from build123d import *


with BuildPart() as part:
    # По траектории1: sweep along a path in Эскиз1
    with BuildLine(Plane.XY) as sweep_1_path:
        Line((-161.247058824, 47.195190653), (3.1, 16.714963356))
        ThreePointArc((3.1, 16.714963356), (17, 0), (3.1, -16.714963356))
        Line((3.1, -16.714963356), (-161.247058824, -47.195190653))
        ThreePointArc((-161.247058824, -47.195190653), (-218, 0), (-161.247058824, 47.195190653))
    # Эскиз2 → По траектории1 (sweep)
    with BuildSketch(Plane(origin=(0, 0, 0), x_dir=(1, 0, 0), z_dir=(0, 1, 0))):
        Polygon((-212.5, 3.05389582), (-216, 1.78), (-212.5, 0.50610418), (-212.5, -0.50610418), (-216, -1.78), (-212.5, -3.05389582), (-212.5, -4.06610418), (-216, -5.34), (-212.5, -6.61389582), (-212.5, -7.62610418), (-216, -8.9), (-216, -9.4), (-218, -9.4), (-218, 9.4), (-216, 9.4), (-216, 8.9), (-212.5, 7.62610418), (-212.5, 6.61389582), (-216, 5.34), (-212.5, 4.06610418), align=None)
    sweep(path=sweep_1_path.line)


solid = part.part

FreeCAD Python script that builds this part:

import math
import FreeCAD as App
import Part
import Sketcher
Q = App.Units.Quantity

doc = App.newDocument("Part")
body = doc.addObject("PartDesign::Body", "Body")

# Sketch on XZ plane
sketch1 = body.newObject("Sketcher::SketchObject", "Sketch")
sketch1.AttachmentSupport = (doc.getObject("XZ_Plane"), [""])
sketch1.MapMode = "FlatFace"
sketch1.addGeometry([
    Part.LineSegment(App.Vector(-216, -1.8, 0), App.Vector(-212.5, -3.1, 0)),  # 0
    Part.LineSegment(App.Vector(-212.5, -3.1, 0), App.Vector(-212.5, -4.1, 0)),  # 1
    Part.LineSegment(App.Vector(-212.5, -4.1, 0), App.Vector(-216, -5.3, 0)),  # 2
    Part.LineSegment(App.Vector(-216, -5.3, 0), App.Vector(-212.5, -6.6, 0)),  # 3
    Part.LineSegment(App.Vector(-212.5, -6.6, 0), App.Vector(-212.5, -7.6, 0)),  # 4
    Part.LineSegment(App.Vector(-212.5, -7.6, 0), App.Vector(-216, -8.9, 0)),  # 5
    Part.LineSegment(App.Vector(-216, -8.9, 0), App.Vector(-216, -9.4, 0)),  # 6
    Part.LineSegment(App.Vector(-216, -9.4, 0), App.Vector(-218, -9.4, 0)),  # 7
    Part.LineSegment(App.Vector(-218, -9.4, 0), App.Vector(-218, 9.4, 0)),  # 8
    Part.LineSegment(App.Vector(-218, 9.4, 0), App.Vector(-216, 9.4, 0)),  # 9
    Part.LineSegment(App.Vector(-216, 9.4, 0), App.Vector(-216, 8.9, 0)),  # 10
    Part.LineSegment(App.Vector(-216, 8.9, 0), App.Vector(-212.5, 7.6, 0)),  # 11
    Part.LineSegment(App.Vector(-212.5, 7.6, 0), App.Vector(-212.5, 6.6, 0)),  # 12
    Part.LineSegment(App.Vector(-212.5, 6.6, 0), App.Vector(-216, 5.3, 0)),  # 13
    Part.LineSegment(App.Vector(-216, 5.3, 0), App.Vector(-212.5, 4.1, 0)),  # 14
    Part.LineSegment(App.Vector(-212.5, 4.1, 0), App.Vector(-212.5, 3.1, 0)),  # 15
    Part.LineSegment(App.Vector(-212.5, 3.1, 0), App.Vector(-216, 1.8, 0)),  # 16
    Part.LineSegment(App.Vector(-216, 1.8, 0), App.Vector(-212.5, 0.5, 0)),  # 17
    Part.LineSegment(App.Vector(-212.5, 0.5, 0), App.Vector(-212.5, -0.5, 0)),  # 18
    Part.LineSegment(App.Vector(-212.5, -0.5, 0), App.Vector(-216, -1.8, 0)),  # 19
], False)
sketch1.addConstraint([
    Sketcher.Constraint("Coincident", 0, 2, 1, 1),
    Sketcher.Constraint("Coincident", 1, 2, 2, 1),
    Sketcher.Constraint("Coincident", 2, 2, 3, 1),
    Sketcher.Constraint("Coincident", 3, 2, 4, 1),
    Sketcher.Constraint("Coincident", 4, 2, 5, 1),
    Sketcher.Constraint("Coincident", 5, 2, 6, 1),
    Sketcher.Constraint("Coincident", 6, 2, 7, 1),
    Sketcher.Constraint("Coincident", 7, 2, 8, 1),
    Sketcher.Constraint("Coincident", 8, 2, 9, 1),
    Sketcher.Constraint("Coincident", 9, 2, 10, 1),
    Sketcher.Constraint("Coincident", 10, 2, 11, 1),
    Sketcher.Constraint("Coincident", 11, 2, 12, 1),
    Sketcher.Constraint("Coincident", 12, 2, 13, 1),
    Sketcher.Constraint("Coincident", 13, 2, 14, 1),
    Sketcher.Constraint("Coincident", 14, 2, 15, 1),
    Sketcher.Constraint("Coincident", 15, 2, 16, 1),
    Sketcher.Constraint("Coincident", 16, 2, 17, 1),
    Sketcher.Constraint("Coincident", 17, 2, 18, 1),
    Sketcher.Constraint("Coincident", 18, 2, 19, 1),
    Sketcher.Constraint("Coincident", 19, 2, 0, 1),
    Sketcher.Constraint("Vertical", 1),
    Sketcher.Constraint("Vertical", 4),
    Sketcher.Constraint("Vertical", 6),
    Sketcher.Constraint("Horizontal", 7),
    Sketcher.Constraint("Vertical", 8),
    Sketcher.Constraint("Horizontal", 9),
    Sketcher.Constraint("Vertical", 10),
    Sketcher.Constraint("Vertical", 12),
    Sketcher.Constraint("Vertical", 15),
    Sketcher.Constraint("Vertical", 18),
    Sketcher.Constraint("Symmetric", 6, 2, 9, 2, -1),
    Sketcher.Constraint("Symmetric", 4, 2, 11, 2, -1),
    Sketcher.Constraint("Symmetric", 2, 2, 13, 2, -1),
    Sketcher.Constraint("Symmetric", 1, 2, 14, 2, -1),
    Sketcher.Constraint("Symmetric", 16, 2, 19, 2, -1),
    Sketcher.Constraint("Parallel", 0, 3),
    Sketcher.Constraint("Parallel", 2, 5),
    Sketcher.Constraint("Parallel", 3, 11),
    Sketcher.Constraint("Parallel", 5, 13),
    Sketcher.Constraint("Parallel", 11, 14),
    Sketcher.Constraint("Parallel", 13, 16),
    Sketcher.Constraint("Parallel", 14, 17),
    Sketcher.Constraint("Parallel", 16, 19),
    Sketcher.Constraint("Vertical", 1, 2, 3, 2),
    Sketcher.Constraint("Vertical", 2, 2, 5, 2),
    Sketcher.Constraint("Vertical", 13, 2, 16, 2),
    Sketcher.Constraint("Vertical", 15, 2, 17, 2),
    Sketcher.Constraint("Equal", 1, 4),
    Sketcher.Constraint("Equal", 15, 18),
    Sketcher.Constraint("DistanceX", 7, 2, 7, 1, Q("2 mm")),
    Sketcher.Constraint("Angle", 0, Q("-20 deg")),
    Sketcher.Constraint("DistanceY", 6, 2, 6, 1, Q("0.5 mm")),
    Sketcher.Constraint("DistanceY", 8, 1, 8, 2, Q("18.8 mm")),
    Sketcher.Constraint("DistanceX", 2, 2, -1, 1, Q("216 mm")),
    Sketcher.Constraint("DistanceX", 0, 2, -1, 1, Q("212.5 mm")),
])

# Sketch on XY plane
sketch2 = body.newObject("Sketcher::SketchObject", "Sketch001")
sketch2.AttachmentSupport = (doc.getObject("XY_Plane"), [""])
sketch2.MapMode = "FlatFace"
sketch2.addGeometry([
    Part.LineSegment(App.Vector(-161, 47, 0), App.Vector(3, 17, 0)),
    Part.ArcOfCircle(Part.Circle(App.Vector(0, 0, 0), App.Vector(0, 0, 1), 17), math.radians(-79), math.radians(79)),
    Part.LineSegment(App.Vector(3, -17, 0), App.Vector(-161, -47, 0)),
    Part.ArcOfCircle(Part.Circle(App.Vector(-170, 0, 0), App.Vector(0, 0, 1), 48), math.radians(79), math.radians(281)),
], False)
sketch2.addConstraint([
    Sketcher.Constraint("Tangent", 0, 2, 1, 2),
    Sketcher.Constraint("Tangent", 1, 1, 2, 1),
    Sketcher.Constraint("Tangent", 2, 2, 3, 2),
    Sketcher.Constraint("Tangent", 3, 1, 0, 1),
    Sketcher.Constraint("Coincident", 1, 3, -1, 1),
    Sketcher.Constraint("PointOnObject", 3, 3, -1),
    Sketcher.Constraint("Radius", 1, Q("17 mm")),
    Sketcher.Constraint("Radius", 3, Q("48 mm")),
    Sketcher.Constraint("DistanceX", 3, 3, -1, 1, Q("170 mm")),
])
doc.recompute()

additivepipe = body.newObject("PartDesign::AdditivePipe", "AdditivePipe")
additivepipe.Profile = sketch1
additivepipe.Spine = (sketch2, ["Edge1", "Edge2", "Edge3", "Edge4"])

doc.recompute()
